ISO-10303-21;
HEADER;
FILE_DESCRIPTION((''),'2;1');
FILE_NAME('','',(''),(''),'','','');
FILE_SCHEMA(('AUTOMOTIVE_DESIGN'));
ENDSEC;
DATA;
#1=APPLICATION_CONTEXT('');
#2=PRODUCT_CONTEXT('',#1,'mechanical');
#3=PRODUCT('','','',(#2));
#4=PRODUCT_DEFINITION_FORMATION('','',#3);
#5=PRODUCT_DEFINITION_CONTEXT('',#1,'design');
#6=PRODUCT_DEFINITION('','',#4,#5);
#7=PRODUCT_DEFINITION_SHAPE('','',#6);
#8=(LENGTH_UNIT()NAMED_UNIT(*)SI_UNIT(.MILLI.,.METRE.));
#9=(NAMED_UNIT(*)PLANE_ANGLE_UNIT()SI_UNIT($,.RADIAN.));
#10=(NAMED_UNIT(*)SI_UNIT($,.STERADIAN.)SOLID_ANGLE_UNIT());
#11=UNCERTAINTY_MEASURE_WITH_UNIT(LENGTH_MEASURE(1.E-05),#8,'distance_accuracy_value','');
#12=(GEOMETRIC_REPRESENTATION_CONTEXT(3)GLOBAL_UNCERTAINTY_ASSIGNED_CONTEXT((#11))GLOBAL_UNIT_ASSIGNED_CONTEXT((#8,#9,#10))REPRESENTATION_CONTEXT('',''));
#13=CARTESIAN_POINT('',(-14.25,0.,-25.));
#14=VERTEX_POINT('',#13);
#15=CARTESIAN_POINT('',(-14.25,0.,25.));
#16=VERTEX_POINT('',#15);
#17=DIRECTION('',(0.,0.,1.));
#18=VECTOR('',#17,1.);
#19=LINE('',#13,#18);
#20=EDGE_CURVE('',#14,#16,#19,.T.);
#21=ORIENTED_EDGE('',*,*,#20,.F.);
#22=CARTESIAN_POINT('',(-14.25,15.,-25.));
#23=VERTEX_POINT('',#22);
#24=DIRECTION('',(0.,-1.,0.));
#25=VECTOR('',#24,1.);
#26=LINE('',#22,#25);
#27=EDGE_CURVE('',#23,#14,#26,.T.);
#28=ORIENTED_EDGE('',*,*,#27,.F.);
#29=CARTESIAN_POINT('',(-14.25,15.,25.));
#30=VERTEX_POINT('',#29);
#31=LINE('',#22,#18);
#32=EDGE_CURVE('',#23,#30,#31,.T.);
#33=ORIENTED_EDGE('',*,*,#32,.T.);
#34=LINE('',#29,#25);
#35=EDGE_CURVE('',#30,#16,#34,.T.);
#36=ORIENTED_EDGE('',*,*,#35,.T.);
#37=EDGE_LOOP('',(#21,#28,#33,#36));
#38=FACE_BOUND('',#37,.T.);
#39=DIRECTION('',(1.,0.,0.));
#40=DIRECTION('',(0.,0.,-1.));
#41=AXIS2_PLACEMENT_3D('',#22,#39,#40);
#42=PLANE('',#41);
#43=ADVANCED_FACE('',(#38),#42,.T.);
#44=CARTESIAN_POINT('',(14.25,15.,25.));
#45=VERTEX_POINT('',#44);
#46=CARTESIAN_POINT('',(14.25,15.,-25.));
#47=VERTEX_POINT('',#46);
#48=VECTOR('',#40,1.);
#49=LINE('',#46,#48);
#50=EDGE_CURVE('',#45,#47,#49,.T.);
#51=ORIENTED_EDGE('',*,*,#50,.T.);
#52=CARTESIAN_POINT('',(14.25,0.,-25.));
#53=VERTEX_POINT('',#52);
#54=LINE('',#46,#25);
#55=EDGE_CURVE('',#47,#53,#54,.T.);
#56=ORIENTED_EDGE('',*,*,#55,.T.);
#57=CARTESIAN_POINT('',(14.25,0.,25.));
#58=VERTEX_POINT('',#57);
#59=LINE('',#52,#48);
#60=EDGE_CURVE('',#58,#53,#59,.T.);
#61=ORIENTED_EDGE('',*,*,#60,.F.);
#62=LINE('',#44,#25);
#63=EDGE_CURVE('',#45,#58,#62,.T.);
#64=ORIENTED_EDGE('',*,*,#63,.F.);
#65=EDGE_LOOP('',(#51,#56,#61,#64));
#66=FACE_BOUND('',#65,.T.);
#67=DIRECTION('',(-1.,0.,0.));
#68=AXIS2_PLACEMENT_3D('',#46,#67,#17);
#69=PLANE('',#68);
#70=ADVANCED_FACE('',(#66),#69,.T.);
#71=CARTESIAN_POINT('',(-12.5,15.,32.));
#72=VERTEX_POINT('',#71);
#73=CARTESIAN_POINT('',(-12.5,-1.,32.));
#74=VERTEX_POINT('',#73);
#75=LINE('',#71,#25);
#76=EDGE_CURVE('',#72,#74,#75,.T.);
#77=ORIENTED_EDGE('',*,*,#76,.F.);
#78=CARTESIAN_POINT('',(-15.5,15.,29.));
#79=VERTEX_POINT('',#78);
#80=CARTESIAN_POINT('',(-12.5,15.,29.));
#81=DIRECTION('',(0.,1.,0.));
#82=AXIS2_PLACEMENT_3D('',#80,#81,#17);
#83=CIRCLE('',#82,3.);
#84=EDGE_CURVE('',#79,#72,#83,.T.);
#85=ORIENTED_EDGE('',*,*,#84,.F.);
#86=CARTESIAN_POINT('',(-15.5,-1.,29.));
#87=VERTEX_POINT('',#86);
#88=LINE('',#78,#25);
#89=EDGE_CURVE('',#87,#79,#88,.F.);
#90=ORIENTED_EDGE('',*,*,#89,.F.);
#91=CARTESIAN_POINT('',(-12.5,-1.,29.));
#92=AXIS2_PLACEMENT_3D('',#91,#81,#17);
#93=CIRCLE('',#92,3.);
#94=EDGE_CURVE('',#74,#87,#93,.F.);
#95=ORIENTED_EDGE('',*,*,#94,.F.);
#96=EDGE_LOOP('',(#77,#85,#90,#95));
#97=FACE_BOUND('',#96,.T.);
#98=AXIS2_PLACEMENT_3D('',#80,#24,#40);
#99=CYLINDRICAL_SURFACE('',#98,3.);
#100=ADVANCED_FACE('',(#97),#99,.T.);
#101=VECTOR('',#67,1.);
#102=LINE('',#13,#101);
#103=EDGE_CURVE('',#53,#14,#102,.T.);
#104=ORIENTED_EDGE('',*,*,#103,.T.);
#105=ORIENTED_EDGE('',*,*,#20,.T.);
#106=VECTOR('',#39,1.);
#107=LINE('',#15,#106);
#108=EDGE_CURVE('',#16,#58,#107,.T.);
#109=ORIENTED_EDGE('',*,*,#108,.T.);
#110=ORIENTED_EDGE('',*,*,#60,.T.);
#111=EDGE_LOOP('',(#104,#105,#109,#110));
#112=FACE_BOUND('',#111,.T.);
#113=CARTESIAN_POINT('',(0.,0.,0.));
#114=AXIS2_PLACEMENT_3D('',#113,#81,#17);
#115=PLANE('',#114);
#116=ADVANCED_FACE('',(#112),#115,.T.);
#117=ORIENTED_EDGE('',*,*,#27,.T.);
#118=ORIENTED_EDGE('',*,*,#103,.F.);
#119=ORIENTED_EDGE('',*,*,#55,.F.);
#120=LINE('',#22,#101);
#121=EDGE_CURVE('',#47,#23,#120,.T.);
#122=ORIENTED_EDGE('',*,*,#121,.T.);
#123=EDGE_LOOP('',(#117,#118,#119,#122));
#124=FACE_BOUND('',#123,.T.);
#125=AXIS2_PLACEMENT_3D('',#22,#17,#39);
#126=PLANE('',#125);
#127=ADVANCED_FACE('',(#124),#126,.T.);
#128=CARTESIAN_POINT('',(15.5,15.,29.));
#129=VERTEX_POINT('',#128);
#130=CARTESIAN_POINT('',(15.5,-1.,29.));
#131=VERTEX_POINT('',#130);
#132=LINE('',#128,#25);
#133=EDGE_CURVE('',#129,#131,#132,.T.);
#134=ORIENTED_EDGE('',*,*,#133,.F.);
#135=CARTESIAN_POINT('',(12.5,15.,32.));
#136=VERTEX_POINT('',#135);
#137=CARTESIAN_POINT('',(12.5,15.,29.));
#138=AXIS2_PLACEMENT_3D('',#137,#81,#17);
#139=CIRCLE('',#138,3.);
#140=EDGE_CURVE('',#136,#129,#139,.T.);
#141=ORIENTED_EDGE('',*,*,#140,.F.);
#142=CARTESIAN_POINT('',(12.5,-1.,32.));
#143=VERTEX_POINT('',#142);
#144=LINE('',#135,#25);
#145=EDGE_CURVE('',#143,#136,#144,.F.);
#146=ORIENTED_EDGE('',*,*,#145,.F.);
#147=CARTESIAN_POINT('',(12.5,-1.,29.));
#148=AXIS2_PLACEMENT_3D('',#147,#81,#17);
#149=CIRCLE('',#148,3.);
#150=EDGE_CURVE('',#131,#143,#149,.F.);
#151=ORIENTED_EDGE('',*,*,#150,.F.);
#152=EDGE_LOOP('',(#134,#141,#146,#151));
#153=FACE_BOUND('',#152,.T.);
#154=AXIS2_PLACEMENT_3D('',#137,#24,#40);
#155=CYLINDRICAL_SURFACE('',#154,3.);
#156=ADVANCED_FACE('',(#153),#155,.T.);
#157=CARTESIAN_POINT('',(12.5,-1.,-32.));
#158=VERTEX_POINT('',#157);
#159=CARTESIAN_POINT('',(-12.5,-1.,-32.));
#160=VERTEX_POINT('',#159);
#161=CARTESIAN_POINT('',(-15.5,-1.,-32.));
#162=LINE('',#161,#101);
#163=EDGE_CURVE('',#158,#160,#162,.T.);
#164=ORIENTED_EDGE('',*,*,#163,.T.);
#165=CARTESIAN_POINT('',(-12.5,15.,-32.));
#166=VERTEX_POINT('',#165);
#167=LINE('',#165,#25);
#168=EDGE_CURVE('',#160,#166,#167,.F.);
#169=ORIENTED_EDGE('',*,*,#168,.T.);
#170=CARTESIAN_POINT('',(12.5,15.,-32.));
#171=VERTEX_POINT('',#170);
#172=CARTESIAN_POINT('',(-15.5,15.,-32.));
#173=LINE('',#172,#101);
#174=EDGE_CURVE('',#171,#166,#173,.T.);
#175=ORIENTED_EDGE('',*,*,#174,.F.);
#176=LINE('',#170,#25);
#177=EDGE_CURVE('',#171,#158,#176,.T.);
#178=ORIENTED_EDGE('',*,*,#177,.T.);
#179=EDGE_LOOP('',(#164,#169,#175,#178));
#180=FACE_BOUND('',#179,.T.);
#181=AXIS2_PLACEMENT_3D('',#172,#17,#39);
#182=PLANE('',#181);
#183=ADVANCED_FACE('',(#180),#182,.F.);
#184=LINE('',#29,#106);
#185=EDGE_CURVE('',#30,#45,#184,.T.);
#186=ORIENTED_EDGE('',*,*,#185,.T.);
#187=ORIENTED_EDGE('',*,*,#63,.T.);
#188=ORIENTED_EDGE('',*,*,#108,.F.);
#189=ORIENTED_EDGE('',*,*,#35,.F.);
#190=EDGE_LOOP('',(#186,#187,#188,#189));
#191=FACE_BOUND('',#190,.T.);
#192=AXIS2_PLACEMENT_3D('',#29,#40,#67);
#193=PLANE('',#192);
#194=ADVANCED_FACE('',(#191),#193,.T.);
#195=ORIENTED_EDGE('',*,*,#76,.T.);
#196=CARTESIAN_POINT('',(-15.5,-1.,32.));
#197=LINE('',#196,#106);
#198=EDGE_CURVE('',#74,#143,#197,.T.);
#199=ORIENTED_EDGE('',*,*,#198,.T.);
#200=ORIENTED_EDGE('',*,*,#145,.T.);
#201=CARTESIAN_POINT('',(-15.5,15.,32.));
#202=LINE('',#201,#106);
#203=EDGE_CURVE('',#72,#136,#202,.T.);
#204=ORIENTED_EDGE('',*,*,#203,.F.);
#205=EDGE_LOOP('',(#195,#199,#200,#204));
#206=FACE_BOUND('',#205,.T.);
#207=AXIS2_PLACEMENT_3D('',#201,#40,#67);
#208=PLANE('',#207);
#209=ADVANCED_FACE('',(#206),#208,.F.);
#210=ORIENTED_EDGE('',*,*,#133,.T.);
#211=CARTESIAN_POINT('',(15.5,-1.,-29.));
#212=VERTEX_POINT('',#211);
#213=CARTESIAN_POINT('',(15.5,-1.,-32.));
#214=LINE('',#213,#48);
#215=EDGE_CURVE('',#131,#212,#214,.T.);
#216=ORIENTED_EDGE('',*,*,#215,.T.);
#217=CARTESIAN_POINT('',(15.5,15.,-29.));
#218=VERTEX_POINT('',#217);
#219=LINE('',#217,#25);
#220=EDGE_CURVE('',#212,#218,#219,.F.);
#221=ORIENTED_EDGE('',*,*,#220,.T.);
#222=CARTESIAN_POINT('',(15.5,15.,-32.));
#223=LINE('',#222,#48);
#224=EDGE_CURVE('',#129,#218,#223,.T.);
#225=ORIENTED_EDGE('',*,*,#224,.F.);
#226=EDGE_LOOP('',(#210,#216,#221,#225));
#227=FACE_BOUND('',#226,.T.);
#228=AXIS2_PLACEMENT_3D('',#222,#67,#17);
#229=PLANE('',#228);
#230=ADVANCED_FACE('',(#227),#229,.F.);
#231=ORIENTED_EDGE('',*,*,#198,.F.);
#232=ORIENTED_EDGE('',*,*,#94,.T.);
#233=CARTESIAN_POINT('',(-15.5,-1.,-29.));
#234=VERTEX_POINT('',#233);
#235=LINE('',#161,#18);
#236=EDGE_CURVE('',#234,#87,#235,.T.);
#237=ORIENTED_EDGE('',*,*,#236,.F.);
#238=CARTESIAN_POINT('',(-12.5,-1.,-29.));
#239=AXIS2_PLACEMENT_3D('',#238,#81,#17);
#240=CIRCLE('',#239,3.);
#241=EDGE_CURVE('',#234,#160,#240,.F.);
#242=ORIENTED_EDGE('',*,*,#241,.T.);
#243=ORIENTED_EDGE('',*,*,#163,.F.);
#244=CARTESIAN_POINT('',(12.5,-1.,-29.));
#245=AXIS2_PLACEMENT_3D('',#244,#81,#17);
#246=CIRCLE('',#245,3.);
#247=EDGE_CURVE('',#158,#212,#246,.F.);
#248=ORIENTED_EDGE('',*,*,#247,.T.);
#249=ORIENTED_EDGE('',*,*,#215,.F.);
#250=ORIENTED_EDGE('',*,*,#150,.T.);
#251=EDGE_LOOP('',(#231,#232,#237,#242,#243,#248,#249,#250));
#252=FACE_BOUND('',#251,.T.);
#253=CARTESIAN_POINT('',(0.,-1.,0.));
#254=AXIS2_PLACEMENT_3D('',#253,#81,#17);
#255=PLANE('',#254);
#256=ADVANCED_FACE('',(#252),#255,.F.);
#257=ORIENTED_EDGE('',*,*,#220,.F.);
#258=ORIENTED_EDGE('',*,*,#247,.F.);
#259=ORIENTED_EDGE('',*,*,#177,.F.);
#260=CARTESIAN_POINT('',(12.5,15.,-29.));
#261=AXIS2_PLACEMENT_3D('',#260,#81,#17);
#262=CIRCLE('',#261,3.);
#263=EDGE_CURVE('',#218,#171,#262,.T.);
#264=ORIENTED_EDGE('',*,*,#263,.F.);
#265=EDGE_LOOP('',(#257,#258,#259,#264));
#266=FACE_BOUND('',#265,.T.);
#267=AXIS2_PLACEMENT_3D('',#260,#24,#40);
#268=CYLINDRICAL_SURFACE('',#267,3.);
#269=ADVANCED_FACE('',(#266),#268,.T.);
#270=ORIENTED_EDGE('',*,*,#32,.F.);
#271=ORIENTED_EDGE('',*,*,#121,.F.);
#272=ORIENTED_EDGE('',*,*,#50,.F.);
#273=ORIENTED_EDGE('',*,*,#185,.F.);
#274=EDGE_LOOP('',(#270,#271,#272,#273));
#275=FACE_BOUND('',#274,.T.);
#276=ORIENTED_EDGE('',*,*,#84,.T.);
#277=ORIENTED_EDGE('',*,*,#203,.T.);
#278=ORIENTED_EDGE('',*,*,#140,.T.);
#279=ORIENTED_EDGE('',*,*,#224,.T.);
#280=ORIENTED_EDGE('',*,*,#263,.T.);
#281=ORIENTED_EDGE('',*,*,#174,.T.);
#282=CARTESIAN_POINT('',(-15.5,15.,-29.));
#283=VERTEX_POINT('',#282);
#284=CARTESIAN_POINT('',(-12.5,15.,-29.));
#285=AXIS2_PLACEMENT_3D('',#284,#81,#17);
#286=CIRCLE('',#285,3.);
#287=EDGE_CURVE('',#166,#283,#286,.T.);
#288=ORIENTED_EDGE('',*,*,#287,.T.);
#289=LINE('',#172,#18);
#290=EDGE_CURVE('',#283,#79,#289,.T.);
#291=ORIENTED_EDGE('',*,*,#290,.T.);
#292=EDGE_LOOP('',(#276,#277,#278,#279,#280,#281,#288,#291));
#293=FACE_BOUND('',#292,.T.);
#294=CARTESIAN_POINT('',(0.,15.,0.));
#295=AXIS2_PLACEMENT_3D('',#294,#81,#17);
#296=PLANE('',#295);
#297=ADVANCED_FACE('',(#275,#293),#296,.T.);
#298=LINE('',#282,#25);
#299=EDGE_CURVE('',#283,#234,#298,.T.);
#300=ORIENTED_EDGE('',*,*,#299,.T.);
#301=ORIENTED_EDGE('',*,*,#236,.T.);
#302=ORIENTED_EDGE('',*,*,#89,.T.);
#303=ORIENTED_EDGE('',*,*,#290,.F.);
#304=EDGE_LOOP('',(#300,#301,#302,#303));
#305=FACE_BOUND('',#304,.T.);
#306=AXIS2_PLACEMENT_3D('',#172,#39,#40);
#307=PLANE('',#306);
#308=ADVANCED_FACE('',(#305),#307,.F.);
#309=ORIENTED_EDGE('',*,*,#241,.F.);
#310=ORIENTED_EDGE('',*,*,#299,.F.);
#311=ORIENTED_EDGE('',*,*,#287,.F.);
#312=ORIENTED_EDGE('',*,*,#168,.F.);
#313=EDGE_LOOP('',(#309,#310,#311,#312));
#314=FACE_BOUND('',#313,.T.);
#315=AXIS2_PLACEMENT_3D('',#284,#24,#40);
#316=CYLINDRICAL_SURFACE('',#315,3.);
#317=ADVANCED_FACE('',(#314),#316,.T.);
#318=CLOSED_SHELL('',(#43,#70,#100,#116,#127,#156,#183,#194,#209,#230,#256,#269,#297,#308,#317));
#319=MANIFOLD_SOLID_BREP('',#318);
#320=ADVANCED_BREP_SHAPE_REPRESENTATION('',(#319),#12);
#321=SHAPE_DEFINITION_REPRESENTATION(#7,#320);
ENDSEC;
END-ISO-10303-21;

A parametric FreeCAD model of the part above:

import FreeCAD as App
import Part
import Sketcher
from FreeCAD import Vector


def edges_at(feature, points):
    """Names of the edges that pass closest to the given points."""
    edges = feature.Shape.Edges
    near = lambda p: min(range(len(edges)), key=lambda i: edges[i].distToShape(Part.Vertex(*p))[0])
    return sorted({f"Edge{near(p) + 1}" for p in points})

doc = App.newDocument("Part")
body = doc.addObject("PartDesign::Body", "Body")

sketch1 = body.newObject("Sketcher::SketchObject", "Sketch")
sketch1.AttachmentSupport = (doc.getObject("XZ_Plane"), [""])
sketch1.MapMode = "FlatFace"
sketch1.addGeometry(Part.LineSegment(Vector(-16, -32, 0), Vector(-16, 32, 0)), False)
sketch1.addGeometry(Part.LineSegment(Vector(-16, 32, 0), Vector(16, 32, 0)), False)
sketch1.addGeometry(Part.LineSegment(Vector(16, 32, 0), Vector(16, -32, 0)), False)
sketch1.addGeometry(Part.LineSegment(Vector(16, -32, 0), Vector(-16, -32, 0)), False)
sketch1.addGeometry(Part.LineSegment(Vector(14, 25, 0), Vector(-14, 25, 0)), False)
sketch1.addGeometry(Part.LineSegment(Vector(-14, 25, 0), Vector(-14, -25, 0)), False)
sketch1.addGeometry(Part.LineSegment(Vector(-14, -25, 0), Vector(14, -25, 0)), False)
sketch1.addGeometry(Part.LineSegment(Vector(14, -25, 0), Vector(14, 25, 0)), False)
sketch1.addConstraint(Sketcher.Constraint("Coincident", 0, 2, 1, 1))
sketch1.addConstraint(Sketcher.Constraint("Coincident", 1, 2, 2, 1))
sketch1.addConstraint(Sketcher.Constraint("Coincident", 2, 2, 3, 1))
sketch1.addConstraint(Sketcher.Constraint("Coincident", 3, 2, 0, 1))
sketch1.addConstraint(Sketcher.Constraint("Coincident", 4, 2, 5, 1))
sketch1.addConstraint(Sketcher.Constraint("Coincident", 5, 2, 6, 1))
sketch1.addConstraint(Sketcher.Constraint("Coincident", 6, 2, 7, 1))
sketch1.addConstraint(Sketcher.Constraint("Coincident", 7, 2, 4, 1))
sketch1.addConstraint(Sketcher.Constraint("Vertical", 0))
sketch1.addConstraint(Sketcher.Constraint("Horizontal", 1))
sketch1.addConstraint(Sketcher.Constraint("Vertical", 2))
sketch1.addConstraint(Sketcher.Constraint("Horizontal", 3))
sketch1.addConstraint(Sketcher.Constraint("Horizontal", 4))
sketch1.addConstraint(Sketcher.Constraint("Vertical", 5))
sketch1.addConstraint(Sketcher.Constraint("Horizontal", 6))
sketch1.addConstraint(Sketcher.Constraint("Vertical", 7))
sketch1.addConstraint(Sketcher.Constraint("Symmetric", 0, 2, 2, 2, -1, 1))
sketch1.addConstraint(Sketcher.Constraint("Symmetric", 4, 2, 6, 2, -1, 1))
sketch1.addConstraint(Sketcher.Constraint("DistanceX", 1, 1, 1, 2, 31.0))
sketch1.addConstraint(Sketcher.Constraint("DistanceY", 0, 1, 0, 2, 64.0))
sketch1.addConstraint(Sketcher.Constraint("DistanceY", 5, 2, 5, 1, 50.0))
sketch1.addConstraint(Sketcher.Constraint("DistanceX", 4, 2, 4, 1, 28.5))
pad1 = body.newObject("PartDesign::Pad", "Pad")
pad1.Profile = sketch1
pad1.Length = 15
pad1.Reversed = True

sketch2 = body.newObject("Sketcher::SketchObject", "Sketch001")
sketch2.AttachmentSupport = (doc.getObject("XZ_Plane"), [""])
sketch2.MapMode = "FlatFace"
sketch2.addGeometry(Part.LineSegment(Vector(-16, -32, 0), Vector(-16, 32, 0)), False)
sketch2.addGeometry(Part.LineSegment(Vector(-16, 32, 0), Vector(16, 32, 0)), False)
sketch2.addGeometry(Part.LineSegment(Vector(16, 32, 0), Vector(16, -32, 0)), False)
sketch2.addGeometry(Part.LineSegment(Vector(16, -32, 0), Vector(-16, -32, 0)), False)
sketch2.addConstraint(Sketcher.Constraint("Coincident", 0, 2, 1, 1))
sketch2.addConstraint(Sketcher.Constraint("Coincident", 1, 2, 2, 1))
sketch2.addConstraint(Sketcher.Constraint("Coincident", 2, 2, 3, 1))
sketch2.addConstraint(Sketcher.Constraint("Coincident", 3, 2, 0, 1))
sketch2.addConstraint(Sketcher.Constraint("Vertical", 0))
sketch2.addConstraint(Sketcher.Constraint("Horizontal", 1))
sketch2.addConstraint(Sketcher.Constraint("Vertical", 2))
sketch2.addConstraint(Sketcher.Constraint("Horizontal", 3))
sketch2.addConstraint(Sketcher.Constraint("Symmetric", 0, 2, 2, 2, -1, 1))
sketch2.addConstraint(Sketcher.Constraint("DistanceX", 1, 1, 1, 2, 31.0))
sketch2.addConstraint(Sketcher.Constraint("DistanceY", 0, 1, 0, 2, 64.0))
pad2 = body.newObject("PartDesign::Pad", "Pad001")
pad2.Profile = sketch2
pad2.Length = 1
doc.recompute()

fillet = body.newObject("PartDesign::Fillet", "Fillet")
fillet.Base = (pad2, edges_at(pad2, [
    (15.5, 7, 32),
    (-15.5, 7, 32),
    (-15.5, 7, -32),
    (15.5, 7, -32),
]))
fillet.Radius = 3

doc.recompute()
